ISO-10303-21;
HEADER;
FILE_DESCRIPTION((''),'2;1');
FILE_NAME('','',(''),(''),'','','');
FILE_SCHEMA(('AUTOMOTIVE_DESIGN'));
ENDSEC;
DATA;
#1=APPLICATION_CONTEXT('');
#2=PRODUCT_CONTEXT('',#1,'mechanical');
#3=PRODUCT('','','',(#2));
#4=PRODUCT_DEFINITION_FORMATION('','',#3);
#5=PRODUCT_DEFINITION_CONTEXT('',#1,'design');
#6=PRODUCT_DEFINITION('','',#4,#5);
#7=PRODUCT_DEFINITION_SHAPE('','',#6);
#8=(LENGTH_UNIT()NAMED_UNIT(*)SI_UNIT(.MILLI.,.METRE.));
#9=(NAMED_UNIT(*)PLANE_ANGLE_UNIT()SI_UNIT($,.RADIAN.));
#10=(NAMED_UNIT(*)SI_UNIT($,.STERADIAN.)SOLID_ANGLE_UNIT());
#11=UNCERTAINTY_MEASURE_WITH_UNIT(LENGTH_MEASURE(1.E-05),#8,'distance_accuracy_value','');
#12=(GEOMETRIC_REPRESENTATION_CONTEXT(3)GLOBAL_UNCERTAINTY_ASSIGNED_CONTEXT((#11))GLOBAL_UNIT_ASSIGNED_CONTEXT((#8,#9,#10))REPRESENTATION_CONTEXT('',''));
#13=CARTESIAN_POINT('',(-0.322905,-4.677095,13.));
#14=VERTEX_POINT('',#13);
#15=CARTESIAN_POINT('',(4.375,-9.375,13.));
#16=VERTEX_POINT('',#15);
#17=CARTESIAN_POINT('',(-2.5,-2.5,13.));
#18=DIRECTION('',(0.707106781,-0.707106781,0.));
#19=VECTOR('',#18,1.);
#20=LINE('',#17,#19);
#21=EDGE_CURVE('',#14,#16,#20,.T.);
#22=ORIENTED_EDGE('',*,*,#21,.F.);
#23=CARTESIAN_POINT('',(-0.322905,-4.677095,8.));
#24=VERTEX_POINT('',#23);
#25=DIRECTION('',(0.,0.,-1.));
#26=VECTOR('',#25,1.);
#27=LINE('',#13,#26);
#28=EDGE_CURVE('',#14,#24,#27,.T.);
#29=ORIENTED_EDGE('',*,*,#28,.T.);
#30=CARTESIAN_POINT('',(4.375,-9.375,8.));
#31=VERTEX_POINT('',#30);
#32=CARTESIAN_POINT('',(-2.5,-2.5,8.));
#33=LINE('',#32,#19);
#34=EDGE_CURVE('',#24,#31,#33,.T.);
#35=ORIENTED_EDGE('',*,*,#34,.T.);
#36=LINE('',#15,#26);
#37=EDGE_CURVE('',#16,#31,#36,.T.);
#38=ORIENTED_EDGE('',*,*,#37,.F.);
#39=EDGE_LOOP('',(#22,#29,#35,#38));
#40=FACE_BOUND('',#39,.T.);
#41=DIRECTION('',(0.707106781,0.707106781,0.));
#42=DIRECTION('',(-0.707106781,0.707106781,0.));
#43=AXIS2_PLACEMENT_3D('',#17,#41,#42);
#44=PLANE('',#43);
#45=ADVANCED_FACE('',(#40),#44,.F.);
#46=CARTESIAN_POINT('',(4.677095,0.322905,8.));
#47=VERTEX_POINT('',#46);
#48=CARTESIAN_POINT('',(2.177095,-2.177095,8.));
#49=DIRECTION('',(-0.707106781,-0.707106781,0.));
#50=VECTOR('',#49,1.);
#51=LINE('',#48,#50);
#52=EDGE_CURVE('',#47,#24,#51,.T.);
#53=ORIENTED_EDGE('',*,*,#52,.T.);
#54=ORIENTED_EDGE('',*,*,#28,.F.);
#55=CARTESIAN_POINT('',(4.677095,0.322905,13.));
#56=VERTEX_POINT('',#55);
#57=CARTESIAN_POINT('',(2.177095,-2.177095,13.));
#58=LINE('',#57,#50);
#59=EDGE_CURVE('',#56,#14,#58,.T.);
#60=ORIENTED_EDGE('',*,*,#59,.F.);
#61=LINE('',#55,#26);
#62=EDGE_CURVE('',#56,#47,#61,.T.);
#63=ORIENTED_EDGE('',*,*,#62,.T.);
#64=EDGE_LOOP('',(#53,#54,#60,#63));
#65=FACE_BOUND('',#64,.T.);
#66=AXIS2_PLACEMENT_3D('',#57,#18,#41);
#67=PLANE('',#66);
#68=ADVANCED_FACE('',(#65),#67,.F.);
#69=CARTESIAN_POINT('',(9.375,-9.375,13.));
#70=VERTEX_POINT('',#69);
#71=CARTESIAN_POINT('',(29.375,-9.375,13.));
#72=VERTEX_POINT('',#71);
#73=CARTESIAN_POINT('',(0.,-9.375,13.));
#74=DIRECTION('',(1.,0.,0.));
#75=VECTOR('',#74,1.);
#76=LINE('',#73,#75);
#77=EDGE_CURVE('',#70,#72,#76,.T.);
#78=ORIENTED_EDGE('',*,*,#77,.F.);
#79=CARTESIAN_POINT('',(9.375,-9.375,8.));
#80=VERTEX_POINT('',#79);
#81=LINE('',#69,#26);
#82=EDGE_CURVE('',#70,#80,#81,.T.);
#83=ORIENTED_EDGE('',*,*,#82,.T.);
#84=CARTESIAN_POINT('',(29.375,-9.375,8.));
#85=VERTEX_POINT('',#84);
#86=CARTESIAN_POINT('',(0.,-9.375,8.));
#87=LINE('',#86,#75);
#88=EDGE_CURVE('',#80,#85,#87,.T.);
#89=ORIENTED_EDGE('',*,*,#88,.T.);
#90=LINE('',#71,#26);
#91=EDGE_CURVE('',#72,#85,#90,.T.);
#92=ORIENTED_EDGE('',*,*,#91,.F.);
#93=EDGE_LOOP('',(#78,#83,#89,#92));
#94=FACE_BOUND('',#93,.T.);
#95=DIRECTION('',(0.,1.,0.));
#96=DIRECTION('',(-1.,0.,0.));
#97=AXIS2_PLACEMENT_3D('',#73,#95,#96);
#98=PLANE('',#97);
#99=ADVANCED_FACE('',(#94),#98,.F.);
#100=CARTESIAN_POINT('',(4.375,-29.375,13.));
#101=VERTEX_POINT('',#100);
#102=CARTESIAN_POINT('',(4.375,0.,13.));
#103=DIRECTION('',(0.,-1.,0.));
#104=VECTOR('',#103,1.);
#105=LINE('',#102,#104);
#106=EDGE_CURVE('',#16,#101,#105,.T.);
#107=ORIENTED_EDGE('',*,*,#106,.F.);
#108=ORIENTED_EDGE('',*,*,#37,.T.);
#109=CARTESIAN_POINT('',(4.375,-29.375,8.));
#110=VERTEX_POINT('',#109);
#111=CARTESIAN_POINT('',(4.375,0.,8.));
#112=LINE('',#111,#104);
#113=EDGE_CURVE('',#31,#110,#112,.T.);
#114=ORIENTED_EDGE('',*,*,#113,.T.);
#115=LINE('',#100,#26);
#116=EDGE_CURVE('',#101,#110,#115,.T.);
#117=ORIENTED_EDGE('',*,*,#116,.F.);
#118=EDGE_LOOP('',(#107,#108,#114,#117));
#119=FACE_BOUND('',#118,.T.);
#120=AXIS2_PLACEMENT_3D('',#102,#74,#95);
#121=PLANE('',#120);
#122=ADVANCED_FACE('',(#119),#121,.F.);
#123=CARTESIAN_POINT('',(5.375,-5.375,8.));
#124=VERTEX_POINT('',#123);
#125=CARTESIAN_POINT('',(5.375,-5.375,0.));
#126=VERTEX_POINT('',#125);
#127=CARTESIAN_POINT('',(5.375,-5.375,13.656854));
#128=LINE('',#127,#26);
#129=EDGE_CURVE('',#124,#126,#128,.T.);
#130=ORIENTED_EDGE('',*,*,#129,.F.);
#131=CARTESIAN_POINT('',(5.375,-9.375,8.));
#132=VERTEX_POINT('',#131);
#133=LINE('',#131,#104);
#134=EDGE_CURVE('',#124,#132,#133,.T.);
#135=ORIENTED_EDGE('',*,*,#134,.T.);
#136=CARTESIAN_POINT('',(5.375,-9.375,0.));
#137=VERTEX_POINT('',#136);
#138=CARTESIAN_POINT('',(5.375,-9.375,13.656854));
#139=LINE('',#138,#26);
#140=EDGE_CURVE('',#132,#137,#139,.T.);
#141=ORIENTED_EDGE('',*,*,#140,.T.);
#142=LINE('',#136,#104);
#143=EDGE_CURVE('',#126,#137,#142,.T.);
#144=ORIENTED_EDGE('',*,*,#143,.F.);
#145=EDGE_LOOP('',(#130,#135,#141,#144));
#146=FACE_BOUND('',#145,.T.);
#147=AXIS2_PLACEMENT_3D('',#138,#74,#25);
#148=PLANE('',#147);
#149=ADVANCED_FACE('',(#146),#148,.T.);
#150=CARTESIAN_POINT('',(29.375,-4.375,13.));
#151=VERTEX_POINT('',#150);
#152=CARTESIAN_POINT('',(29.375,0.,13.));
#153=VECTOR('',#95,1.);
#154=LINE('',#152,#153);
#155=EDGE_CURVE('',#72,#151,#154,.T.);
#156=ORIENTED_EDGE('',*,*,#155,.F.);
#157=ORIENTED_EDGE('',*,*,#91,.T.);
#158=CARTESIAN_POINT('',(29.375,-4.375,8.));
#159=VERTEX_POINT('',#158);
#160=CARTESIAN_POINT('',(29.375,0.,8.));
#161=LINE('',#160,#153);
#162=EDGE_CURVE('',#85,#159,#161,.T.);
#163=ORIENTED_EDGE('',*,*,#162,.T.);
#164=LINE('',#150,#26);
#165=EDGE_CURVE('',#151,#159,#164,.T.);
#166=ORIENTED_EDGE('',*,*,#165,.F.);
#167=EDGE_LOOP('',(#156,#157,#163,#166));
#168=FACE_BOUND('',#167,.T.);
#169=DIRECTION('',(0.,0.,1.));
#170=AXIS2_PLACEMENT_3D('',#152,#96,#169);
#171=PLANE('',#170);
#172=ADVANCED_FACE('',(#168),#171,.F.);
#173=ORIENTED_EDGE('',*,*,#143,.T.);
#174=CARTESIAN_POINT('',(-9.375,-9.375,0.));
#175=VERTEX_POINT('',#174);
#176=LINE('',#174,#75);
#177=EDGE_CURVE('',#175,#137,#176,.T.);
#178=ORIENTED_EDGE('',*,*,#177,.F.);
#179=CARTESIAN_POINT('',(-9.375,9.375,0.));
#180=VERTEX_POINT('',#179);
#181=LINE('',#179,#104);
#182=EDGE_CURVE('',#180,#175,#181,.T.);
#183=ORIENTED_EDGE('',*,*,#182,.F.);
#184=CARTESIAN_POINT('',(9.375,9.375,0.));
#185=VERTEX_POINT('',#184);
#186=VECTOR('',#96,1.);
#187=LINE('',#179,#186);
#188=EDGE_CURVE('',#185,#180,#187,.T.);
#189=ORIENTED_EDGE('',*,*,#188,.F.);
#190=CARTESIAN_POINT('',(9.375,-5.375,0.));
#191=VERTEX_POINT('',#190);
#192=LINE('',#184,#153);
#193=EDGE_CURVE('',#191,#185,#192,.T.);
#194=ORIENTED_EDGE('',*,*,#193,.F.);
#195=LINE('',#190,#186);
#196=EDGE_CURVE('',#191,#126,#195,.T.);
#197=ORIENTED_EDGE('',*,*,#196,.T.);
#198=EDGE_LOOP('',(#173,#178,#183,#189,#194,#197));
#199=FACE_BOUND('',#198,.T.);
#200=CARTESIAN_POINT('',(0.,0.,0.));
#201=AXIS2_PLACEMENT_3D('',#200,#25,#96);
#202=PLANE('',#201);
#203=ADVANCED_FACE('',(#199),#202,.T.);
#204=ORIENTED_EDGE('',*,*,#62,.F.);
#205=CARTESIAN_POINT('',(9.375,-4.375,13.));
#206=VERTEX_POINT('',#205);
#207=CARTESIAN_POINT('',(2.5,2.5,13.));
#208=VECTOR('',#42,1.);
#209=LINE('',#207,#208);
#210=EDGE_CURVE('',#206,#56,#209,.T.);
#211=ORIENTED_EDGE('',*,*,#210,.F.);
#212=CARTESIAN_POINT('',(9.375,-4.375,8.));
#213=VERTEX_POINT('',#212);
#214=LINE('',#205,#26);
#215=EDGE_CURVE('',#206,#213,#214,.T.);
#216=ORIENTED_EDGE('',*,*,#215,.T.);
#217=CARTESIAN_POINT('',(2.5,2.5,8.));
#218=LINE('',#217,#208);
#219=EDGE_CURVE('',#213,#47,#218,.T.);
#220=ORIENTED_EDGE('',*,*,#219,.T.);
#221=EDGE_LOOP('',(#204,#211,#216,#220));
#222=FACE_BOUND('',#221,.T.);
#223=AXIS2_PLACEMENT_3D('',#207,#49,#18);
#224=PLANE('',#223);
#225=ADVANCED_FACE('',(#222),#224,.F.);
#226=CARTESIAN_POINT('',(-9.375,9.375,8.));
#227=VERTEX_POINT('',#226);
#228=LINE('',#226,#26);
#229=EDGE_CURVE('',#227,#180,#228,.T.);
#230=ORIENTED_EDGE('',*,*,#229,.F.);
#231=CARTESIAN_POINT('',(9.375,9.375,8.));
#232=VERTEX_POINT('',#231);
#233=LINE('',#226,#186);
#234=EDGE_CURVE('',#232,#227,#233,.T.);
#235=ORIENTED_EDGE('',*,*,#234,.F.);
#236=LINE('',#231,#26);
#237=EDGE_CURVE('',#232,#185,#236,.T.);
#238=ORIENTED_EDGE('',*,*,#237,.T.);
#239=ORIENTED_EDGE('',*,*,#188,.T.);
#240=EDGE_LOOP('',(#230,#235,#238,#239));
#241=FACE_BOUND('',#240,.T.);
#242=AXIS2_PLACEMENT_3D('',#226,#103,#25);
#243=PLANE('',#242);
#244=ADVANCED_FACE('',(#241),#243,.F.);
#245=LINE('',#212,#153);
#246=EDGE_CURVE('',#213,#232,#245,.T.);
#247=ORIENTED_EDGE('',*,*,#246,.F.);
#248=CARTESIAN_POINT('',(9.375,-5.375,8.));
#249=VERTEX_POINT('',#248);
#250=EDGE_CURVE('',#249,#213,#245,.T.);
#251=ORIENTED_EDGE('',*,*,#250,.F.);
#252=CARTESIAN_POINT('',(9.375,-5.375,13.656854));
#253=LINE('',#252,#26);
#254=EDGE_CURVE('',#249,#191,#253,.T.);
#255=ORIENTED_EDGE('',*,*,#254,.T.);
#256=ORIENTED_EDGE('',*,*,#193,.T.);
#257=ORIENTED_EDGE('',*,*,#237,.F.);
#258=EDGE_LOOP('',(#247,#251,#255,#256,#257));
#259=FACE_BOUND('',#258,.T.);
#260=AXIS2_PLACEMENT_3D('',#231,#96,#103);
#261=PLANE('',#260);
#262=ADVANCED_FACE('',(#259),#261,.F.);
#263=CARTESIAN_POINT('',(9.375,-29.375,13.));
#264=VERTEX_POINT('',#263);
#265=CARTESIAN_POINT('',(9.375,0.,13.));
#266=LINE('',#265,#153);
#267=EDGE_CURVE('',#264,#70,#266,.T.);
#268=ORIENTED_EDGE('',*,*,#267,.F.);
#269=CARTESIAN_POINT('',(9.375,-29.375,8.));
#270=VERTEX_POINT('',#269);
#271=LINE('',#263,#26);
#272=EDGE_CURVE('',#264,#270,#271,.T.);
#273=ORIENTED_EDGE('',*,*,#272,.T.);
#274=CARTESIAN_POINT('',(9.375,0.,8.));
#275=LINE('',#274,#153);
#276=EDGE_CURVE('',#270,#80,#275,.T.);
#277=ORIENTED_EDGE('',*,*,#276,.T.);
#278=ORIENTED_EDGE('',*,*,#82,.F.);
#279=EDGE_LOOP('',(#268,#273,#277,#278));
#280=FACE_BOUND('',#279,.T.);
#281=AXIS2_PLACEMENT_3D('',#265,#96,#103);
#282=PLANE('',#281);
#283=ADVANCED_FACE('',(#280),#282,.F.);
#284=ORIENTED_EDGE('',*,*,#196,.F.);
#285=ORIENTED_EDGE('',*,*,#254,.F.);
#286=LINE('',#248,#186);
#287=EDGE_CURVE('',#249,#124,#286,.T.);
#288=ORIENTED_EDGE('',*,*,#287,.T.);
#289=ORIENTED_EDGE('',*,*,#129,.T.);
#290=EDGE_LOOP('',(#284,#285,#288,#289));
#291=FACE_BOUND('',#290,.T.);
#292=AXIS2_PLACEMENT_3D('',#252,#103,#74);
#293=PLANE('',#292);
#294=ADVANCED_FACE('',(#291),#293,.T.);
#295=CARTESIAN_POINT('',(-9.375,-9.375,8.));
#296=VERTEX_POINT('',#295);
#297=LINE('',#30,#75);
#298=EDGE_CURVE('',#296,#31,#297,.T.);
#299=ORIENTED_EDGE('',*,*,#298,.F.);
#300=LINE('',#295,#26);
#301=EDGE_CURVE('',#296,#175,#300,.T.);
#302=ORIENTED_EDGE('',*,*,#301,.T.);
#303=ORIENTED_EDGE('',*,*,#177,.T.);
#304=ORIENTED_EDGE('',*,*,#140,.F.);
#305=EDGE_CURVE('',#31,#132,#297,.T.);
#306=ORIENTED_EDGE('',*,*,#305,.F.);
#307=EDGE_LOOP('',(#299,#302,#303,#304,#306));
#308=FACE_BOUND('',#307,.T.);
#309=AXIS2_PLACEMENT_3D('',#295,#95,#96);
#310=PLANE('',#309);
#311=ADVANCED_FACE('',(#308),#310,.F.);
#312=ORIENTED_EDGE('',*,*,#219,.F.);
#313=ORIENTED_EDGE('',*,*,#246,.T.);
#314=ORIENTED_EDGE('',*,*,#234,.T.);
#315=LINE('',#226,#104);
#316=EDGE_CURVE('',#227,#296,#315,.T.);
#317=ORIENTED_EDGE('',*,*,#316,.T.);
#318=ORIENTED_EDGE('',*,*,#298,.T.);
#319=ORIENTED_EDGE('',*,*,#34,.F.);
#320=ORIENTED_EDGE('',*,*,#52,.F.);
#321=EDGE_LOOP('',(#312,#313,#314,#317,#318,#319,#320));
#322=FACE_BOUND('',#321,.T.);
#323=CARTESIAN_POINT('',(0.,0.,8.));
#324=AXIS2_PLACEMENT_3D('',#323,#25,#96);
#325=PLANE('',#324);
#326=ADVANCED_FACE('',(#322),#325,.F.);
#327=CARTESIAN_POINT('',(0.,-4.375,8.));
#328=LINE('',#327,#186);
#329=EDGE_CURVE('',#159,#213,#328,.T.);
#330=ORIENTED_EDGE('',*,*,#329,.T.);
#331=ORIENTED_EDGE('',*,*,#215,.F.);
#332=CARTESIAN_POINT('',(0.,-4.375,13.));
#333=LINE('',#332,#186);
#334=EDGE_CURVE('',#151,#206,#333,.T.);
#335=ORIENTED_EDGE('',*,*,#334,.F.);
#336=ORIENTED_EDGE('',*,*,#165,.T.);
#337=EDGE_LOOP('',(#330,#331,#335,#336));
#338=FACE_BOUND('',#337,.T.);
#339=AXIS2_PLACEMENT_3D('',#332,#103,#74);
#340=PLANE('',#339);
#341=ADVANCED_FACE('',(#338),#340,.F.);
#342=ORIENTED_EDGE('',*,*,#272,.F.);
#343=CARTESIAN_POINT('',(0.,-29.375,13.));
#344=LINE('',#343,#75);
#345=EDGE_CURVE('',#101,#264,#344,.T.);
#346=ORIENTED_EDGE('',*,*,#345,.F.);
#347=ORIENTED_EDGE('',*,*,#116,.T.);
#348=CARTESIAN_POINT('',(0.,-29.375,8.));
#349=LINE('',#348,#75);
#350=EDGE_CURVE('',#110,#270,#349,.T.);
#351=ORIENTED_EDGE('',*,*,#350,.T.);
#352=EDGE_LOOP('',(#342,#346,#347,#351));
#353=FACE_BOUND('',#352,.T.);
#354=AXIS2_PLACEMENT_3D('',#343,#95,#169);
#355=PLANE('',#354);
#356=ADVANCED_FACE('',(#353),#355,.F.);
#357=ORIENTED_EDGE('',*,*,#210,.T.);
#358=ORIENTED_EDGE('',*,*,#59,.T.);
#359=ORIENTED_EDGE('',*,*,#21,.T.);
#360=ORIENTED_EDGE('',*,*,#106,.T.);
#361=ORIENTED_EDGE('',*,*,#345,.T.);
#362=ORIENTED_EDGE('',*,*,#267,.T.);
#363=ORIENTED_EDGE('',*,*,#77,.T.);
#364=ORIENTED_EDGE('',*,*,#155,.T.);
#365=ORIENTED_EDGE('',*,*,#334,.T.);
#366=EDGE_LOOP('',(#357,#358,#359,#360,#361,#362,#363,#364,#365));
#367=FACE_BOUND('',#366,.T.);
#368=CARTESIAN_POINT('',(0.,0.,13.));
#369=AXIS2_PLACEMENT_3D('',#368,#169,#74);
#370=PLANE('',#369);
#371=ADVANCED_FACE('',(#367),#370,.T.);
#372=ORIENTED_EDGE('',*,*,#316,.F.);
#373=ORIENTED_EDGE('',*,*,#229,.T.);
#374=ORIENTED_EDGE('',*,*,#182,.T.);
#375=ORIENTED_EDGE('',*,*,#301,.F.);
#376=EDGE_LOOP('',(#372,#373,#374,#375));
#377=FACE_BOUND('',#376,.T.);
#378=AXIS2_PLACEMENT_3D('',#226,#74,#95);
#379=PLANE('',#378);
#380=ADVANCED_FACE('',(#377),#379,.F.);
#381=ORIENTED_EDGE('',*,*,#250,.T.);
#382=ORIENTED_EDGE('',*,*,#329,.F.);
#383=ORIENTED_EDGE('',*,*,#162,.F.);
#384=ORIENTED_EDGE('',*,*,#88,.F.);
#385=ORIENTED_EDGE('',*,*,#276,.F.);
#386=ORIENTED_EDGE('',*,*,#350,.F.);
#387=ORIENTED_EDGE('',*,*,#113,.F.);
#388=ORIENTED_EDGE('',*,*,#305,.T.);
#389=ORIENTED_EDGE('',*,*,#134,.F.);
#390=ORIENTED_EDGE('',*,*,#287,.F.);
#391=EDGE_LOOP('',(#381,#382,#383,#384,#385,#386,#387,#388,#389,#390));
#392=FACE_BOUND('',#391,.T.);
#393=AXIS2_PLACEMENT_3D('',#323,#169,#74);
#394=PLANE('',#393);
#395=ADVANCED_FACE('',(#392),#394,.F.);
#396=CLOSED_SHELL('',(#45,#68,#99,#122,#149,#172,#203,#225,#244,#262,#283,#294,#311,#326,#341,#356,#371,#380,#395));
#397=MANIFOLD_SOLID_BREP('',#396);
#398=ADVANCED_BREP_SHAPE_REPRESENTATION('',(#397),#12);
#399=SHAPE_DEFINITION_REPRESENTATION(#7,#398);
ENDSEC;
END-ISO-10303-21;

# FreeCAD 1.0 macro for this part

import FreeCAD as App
import Part
import Sketcher

V = App.Vector

doc = App.newDocument("Part")
body = doc.addObject("PartDesign::Body", "Body")

sketch1 = body.newObject("Sketcher::SketchObject", "Sketch")
sketch1.AttachmentSupport = (doc.getObject("XY_Plane"), [""])
sketch1.MapMode = "FlatFace"
sketch1.addGeometry([
    Part.LineSegment(V(9.375, -9.375, 0), V(9.375, 9.375, 0)),
    Part.LineSegment(V(9.375, 9.375, 0), V(-9.375, 9.375, 0)),
    Part.LineSegment(V(-9.375, 9.375, 0), V(-9.375, -9.375, 0)),
    Part.LineSegment(V(-9.375, -9.375, 0), V(9.375, -9.375, 0)),
], False)
sketch1.addConstraint([
    Sketcher.Constraint("Coincident", 0, 2, 1, 1),
    Sketcher.Constraint("Coincident", 1, 2, 2, 1),
    Sketcher.Constraint("Coincident", 2, 2, 3, 1),
    Sketcher.Constraint("Coincident", 3, 2, 0, 1),
    Sketcher.Constraint("Vertical", 0),
    Sketcher.Constraint("Horizontal", 1),
    Sketcher.Constraint("Vertical", 2),
    Sketcher.Constraint("Horizontal", 3),
    Sketcher.Constraint("Symmetric", 0, 2, 2, 2, -1, 1),
    Sketcher.Constraint("Equal", 3, 0),
    Sketcher.Constraint("DistanceX", 1, 2, 1, 1, 18.75),
])
pad1 = body.newObject("PartDesign::Pad", "Pad")
pad1.Profile = sketch1
pad1.Length = 8

sketch2 = body.newObject("Sketcher::SketchObject", "Sketch001")
sketch2.AttachmentSupport = (doc.getObject("XY_Plane"), [""])
sketch2.MapMode = "FlatFace"
sketch2.AttachmentOffset = App.Placement(V(0, 0, 8), App.Rotation())
sketch2.addGeometry([
    Part.LineSegment(V(4.375, -9.375, 0), V(4.375, -29.375, 0)),
    Part.LineSegment(V(4.375, -29.375, 0), V(9.375, -29.375, 0)),
    Part.LineSegment(V(9.375, -29.375, 0), V(9.375, -9.375, 0)),
    Part.LineSegment(V(9.375, -9.375, 0), V(29.375, -9.375, 0)),
    Part.LineSegment(V(29.375, -9.375, 0), V(29.375, -4.375, 0)),
    Part.LineSegment(V(29.375, -4.375, 0), V(9.375, -4.375, 0)),
    Part.LineSegment(V(9.375, -4.375, 0), V(4.677095, 0.322905, 0)),
    Part.LineSegment(V(4.677095, 0.322905, 0), V(-0.322905, -4.677095, 0)),
    Part.LineSegment(V(-0.322905, -4.677095, 0), V(4.375, -9.375, 0)),
], False)
sketch2.addConstraint([
    Sketcher.Constraint("Coincident", 0, 2, 1, 1),
    Sketcher.Constraint("Coincident", 1, 2, 2, 1),
    Sketcher.Constraint("Coincident", 2, 2, 3, 1),
    Sketcher.Constraint("Coincident", 3, 2, 4, 1),
    Sketcher.Constraint("Coincident", 4, 2, 5, 1),
    Sketcher.Constraint("Coincident", 5, 2, 6, 1),
    Sketcher.Constraint("Coincident", 6, 2, 7, 1),
    Sketcher.Constraint("Coincident", 7, 2, 8, 1),
    Sketcher.Constraint("Coincident", 8, 2, 0, 1),
    Sketcher.Constraint("Vertical", 0),
    Sketcher.Constraint("Horizontal", 1),
    Sketcher.Constraint("Vertical", 2),
    Sketcher.Constraint("Horizontal", 3),
    Sketcher.Constraint("Vertical", 4),
    Sketcher.Constraint("Horizontal", 5),
    Sketcher.Constraint("Perpendicular", 6, 7),
    Sketcher.Constraint("Perpendicular", 7, 8),
    Sketcher.Constraint("Horizontal", 3, 2, 8, 2),
    Sketcher.Constraint("Vertical", 2, 2, 5, 2),
    Sketcher.Constraint("Equal", 5, 0),
    Sketcher.Constraint("Equal", 1, 4),
    Sketcher.Constraint("Equal", 6, 8),
    Sketcher.Constraint("DistanceX", 1, 1, 1, 2, 5.0),
    Sketcher.Constraint("DistanceX", 3, 1, 3, 2, 20.0),
    Sketcher.Constraint("DistanceX", -1, 1, 0, 2, 4.375),
    Sketcher.Constraint("DistanceY", 0, 2, -1, 1, 29.375),
    Sketcher.Constraint("Distance", 6, 6.643841),
])
pad2 = body.newObject("PartDesign::Pad", "Pad001")
pad2.Profile = sketch2
pad2.Length = 5

sketch3 = body.newObject("Sketcher::SketchObject", "Sketch002")
sketch3.AttachmentSupport = (doc.getObject("XY_Plane"), [""])
sketch3.MapMode = "FlatFace"
sketch3.addGeometry([
    Part.LineSegment(V(5.375, -5.375, 0), V(5.375, -9.375, 0)),
    Part.LineSegment(V(5.375, -9.375, 0), V(9.375, -9.375, 0)),
    Part.LineSegment(V(9.375, -9.375, 0), V(9.375, -5.375, 0)),
    Part.LineSegment(V(9.375, -5.375, 0), V(5.375, -5.375, 0)),
], False)
sketch3.addConstraint([
    Sketcher.Constraint("Coincident", 0, 2, 1, 1),
    Sketcher.Constraint("Coincident", 1, 2, 2, 1),
    Sketcher.Constraint("Coincident", 2, 2, 3, 1),
    Sketcher.Constraint("Coincident", 3, 2, 0, 1),
    Sketcher.Constraint("Vertical", 0),
    Sketcher.Constraint("Horizontal", 1),
    Sketcher.Constraint("Vertical", 2),
    Sketcher.Constraint("Horizontal", 3),
    Sketcher.Constraint("Equal", 3, 0),
    Sketcher.Constraint("DistanceX", 1, 1, 1, 2, 4.0),
    Sketcher.Constraint("DistanceX", -1, 1, 0, 2, 5.375),
    Sketcher.Constraint("DistanceY", 0, 2, -1, 1, 9.375),
])
pocket1 = body.newObject("PartDesign::Pocket", "Pocket")
pocket1.Profile = sketch3
pocket1.Length = 8
pocket1.Reversed = True

doc.recompute()
